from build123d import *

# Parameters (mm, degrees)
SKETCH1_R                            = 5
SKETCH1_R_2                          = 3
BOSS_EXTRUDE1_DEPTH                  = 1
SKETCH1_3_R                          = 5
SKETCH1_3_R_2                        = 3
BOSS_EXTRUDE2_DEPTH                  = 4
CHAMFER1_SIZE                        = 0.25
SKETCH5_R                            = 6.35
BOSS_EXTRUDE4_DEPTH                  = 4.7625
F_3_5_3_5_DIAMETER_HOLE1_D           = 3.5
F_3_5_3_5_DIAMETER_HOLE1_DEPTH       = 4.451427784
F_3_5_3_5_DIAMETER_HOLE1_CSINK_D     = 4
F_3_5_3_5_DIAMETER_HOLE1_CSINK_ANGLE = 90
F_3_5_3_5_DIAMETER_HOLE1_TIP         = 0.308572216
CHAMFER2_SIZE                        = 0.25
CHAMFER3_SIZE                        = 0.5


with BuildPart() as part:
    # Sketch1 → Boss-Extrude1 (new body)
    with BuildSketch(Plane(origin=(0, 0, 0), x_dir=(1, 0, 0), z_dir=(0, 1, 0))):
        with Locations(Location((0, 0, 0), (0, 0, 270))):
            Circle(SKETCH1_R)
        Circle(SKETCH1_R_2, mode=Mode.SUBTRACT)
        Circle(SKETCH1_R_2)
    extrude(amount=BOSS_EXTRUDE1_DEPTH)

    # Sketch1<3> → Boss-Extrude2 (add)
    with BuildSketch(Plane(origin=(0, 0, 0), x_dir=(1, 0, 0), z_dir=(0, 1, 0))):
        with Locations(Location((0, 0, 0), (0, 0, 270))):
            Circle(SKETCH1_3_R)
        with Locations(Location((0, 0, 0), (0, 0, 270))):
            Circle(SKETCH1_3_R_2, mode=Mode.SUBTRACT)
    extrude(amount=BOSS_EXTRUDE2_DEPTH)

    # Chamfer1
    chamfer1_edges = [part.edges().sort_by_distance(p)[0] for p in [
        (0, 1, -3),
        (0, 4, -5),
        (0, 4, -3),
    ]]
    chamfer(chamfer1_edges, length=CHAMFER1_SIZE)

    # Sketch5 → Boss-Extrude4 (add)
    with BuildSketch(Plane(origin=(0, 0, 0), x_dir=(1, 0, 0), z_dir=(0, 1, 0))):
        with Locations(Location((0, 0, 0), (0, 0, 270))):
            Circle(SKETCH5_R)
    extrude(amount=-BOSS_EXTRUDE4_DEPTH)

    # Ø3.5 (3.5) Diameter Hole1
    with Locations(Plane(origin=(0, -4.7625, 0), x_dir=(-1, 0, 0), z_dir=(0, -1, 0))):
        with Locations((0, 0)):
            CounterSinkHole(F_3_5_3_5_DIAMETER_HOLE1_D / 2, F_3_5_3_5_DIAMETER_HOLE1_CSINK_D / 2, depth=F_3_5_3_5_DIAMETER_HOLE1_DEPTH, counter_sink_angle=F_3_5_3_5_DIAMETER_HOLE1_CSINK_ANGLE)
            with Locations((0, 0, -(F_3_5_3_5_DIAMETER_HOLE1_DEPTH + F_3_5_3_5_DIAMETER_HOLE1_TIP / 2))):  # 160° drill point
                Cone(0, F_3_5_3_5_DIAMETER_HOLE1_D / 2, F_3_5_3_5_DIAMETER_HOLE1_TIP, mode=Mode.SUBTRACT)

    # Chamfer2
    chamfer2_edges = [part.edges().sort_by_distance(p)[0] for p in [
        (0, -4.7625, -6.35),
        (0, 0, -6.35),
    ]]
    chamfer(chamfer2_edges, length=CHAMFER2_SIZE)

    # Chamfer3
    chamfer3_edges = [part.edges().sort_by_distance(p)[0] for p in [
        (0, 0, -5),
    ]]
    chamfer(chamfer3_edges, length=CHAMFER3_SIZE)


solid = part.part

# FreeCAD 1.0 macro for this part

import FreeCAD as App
import Part
import Sketcher
from FreeCAD import Vector
Q = App.Units.Quantity


def edges_at(feature, points):
    """Names of the edges that pass closest to the given points."""
    edges = feature.Shape.Edges
    near = lambda p: min(range(len(edges)), key=lambda i: edges[i].distToShape(Part.Vertex(*p))[0])
    return sorted({f"Edge{near(p) + 1}" for p in points})

doc = App.newDocument("Part")
body = doc.addObject("PartDesign::Body", "Body")

# Sketch on XZ plane
sketch1 = doc.addObject("Sketcher::SketchObject", "Sketch")
body.addObject(sketch1)
sketch1.AttachmentSupport = (doc.XZ_Plane, [""])
sketch1.MapMode = "FlatFace"
sketch1.addGeometry(Part.Circle(Vector(0, 0, 0), Vector(0, 0, 1), 5), False)
sketch1.addConstraint(Sketcher.Constraint("Coincident", 0, 3, -1, 1))
sketch1.addConstraint(Sketcher.Constraint("Diameter", 0, Q("10 mm")))
pad1 = doc.addObject("PartDesign::Pad", "Pad")
body.addObject(pad1)
pad1.Profile = sketch1
pad1.Length = 1
pad1.Reversed = True

# Sketch on XZ plane
sketch2 = doc.addObject("Sketcher::SketchObject", "Sketch001")
body.addObject(sketch2)
sketch2.AttachmentSupport = (doc.XZ_Plane, [""])
sketch2.MapMode = "FlatFace"
sketch2.addGeometry(Part.Circle(Vector(0, 0, 0), Vector(0, 0, 1), 5), False)
sketch2.addGeometry(Part.Circle(Vector(0, 0, 0), Vector(0, 0, 1), 3), False)
sketch2.addConstraint(Sketcher.Constraint("Coincident", 0, 3, -1, 1))
sketch2.addConstraint(Sketcher.Constraint("Coincident", 1, 3, -1, 1))
sketch2.addConstraint(Sketcher.Constraint("Diameter", 0, Q("10 mm")))
sketch2.addConstraint(Sketcher.Constraint("Diameter", 1, Q("6 mm")))
pad2 = doc.addObject("PartDesign::Pad", "Pad001")
body.addObject(pad2)
pad2.Profile = sketch2
pad2.Length = 4
pad2.Reversed = True
doc.recompute()

chamfer = doc.addObject("PartDesign::Chamfer", "Chamfer")
body.addObject(chamfer)
chamfer.Base = (pad2, edges_at(pad2, [(0, 1, -3), (0, 4, -5), (0, 4, -3)]))
chamfer.Size = 0.25

# Sketch on XZ plane
sketch3 = doc.addObject("Sketcher::SketchObject", "Sketch002")
body.addObject(sketch3)
sketch3.AttachmentSupport = (doc.XZ_Plane, [""])
sketch3.MapMode = "FlatFace"
sketch3.addGeometry(Part.Circle(Vector(0, 0, 0), Vector(0, 0, 1), 6.35), False)
sketch3.addConstraint(Sketcher.Constraint("Coincident", 0, 3, -1, 1))
sketch3.addConstraint(Sketcher.Constraint("Diameter", 0, Q("12.7 mm")))
pad3 = doc.addObject("PartDesign::Pad", "Pad002")
body.addObject(pad3)
pad3.Profile = sketch3
pad3.Length = 4.7625

# Sketch on XZ plane
sketch4 = doc.addObject("Sketcher::SketchObject", "Sketch003")
body.addObject(sketch4)
sketch4.AttachmentSupport = (doc.XZ_Plane, [""])
sketch4.MapMode = "FlatFace"
sketch4.AttachmentOffset = App.Placement(Vector(0, 0, 4.7625), App.Rotation())
sketch4.addGeometry(Part.Circle(Vector(0, 0, 0), Vector(0, 0, 1), 1.75), False)
sketch4.addConstraint(Sketcher.Constraint("Coincident", 0, 3, -1, 1))
sketch4.addConstraint(Sketcher.Constraint("Diameter", 0, Q("3.5 mm")))
doc.recompute()
hole = doc.addObject("PartDesign::Hole", "Hole")
body.addObject(hole)
hole.Profile = sketch4
hole.ThreadType = "None"
hole.Diameter = 3.5
hole.DepthType = "Dimension"
hole.Depth = 4.451428
hole.DrillPoint = "Angled"
hole.DrillPointAngle = 160
hole.HoleCutType = "Countersink"
hole.HoleCutDiameter = 4
hole.HoleCutCountersinkAngle = 90
doc.recompute()

chamfer2 = doc.addObject("PartDesign::Chamfer", "Chamfer001")
body.addObject(chamfer2)
chamfer2.Base = (hole, edges_at(hole, [(0, -4.763, -6.35), (0, 0, -6.35)]))
chamfer2.Size = 0.25
doc.recompute()

chamfer3 = doc.addObject("PartDesign::Chamfer", "Chamfer002")
body.addObject(chamfer3)
chamfer3.Base = (chamfer2, edges_at(chamfer2, [(0, 0, -5)]))
chamfer3.Size = 0.5

doc.recompute()
